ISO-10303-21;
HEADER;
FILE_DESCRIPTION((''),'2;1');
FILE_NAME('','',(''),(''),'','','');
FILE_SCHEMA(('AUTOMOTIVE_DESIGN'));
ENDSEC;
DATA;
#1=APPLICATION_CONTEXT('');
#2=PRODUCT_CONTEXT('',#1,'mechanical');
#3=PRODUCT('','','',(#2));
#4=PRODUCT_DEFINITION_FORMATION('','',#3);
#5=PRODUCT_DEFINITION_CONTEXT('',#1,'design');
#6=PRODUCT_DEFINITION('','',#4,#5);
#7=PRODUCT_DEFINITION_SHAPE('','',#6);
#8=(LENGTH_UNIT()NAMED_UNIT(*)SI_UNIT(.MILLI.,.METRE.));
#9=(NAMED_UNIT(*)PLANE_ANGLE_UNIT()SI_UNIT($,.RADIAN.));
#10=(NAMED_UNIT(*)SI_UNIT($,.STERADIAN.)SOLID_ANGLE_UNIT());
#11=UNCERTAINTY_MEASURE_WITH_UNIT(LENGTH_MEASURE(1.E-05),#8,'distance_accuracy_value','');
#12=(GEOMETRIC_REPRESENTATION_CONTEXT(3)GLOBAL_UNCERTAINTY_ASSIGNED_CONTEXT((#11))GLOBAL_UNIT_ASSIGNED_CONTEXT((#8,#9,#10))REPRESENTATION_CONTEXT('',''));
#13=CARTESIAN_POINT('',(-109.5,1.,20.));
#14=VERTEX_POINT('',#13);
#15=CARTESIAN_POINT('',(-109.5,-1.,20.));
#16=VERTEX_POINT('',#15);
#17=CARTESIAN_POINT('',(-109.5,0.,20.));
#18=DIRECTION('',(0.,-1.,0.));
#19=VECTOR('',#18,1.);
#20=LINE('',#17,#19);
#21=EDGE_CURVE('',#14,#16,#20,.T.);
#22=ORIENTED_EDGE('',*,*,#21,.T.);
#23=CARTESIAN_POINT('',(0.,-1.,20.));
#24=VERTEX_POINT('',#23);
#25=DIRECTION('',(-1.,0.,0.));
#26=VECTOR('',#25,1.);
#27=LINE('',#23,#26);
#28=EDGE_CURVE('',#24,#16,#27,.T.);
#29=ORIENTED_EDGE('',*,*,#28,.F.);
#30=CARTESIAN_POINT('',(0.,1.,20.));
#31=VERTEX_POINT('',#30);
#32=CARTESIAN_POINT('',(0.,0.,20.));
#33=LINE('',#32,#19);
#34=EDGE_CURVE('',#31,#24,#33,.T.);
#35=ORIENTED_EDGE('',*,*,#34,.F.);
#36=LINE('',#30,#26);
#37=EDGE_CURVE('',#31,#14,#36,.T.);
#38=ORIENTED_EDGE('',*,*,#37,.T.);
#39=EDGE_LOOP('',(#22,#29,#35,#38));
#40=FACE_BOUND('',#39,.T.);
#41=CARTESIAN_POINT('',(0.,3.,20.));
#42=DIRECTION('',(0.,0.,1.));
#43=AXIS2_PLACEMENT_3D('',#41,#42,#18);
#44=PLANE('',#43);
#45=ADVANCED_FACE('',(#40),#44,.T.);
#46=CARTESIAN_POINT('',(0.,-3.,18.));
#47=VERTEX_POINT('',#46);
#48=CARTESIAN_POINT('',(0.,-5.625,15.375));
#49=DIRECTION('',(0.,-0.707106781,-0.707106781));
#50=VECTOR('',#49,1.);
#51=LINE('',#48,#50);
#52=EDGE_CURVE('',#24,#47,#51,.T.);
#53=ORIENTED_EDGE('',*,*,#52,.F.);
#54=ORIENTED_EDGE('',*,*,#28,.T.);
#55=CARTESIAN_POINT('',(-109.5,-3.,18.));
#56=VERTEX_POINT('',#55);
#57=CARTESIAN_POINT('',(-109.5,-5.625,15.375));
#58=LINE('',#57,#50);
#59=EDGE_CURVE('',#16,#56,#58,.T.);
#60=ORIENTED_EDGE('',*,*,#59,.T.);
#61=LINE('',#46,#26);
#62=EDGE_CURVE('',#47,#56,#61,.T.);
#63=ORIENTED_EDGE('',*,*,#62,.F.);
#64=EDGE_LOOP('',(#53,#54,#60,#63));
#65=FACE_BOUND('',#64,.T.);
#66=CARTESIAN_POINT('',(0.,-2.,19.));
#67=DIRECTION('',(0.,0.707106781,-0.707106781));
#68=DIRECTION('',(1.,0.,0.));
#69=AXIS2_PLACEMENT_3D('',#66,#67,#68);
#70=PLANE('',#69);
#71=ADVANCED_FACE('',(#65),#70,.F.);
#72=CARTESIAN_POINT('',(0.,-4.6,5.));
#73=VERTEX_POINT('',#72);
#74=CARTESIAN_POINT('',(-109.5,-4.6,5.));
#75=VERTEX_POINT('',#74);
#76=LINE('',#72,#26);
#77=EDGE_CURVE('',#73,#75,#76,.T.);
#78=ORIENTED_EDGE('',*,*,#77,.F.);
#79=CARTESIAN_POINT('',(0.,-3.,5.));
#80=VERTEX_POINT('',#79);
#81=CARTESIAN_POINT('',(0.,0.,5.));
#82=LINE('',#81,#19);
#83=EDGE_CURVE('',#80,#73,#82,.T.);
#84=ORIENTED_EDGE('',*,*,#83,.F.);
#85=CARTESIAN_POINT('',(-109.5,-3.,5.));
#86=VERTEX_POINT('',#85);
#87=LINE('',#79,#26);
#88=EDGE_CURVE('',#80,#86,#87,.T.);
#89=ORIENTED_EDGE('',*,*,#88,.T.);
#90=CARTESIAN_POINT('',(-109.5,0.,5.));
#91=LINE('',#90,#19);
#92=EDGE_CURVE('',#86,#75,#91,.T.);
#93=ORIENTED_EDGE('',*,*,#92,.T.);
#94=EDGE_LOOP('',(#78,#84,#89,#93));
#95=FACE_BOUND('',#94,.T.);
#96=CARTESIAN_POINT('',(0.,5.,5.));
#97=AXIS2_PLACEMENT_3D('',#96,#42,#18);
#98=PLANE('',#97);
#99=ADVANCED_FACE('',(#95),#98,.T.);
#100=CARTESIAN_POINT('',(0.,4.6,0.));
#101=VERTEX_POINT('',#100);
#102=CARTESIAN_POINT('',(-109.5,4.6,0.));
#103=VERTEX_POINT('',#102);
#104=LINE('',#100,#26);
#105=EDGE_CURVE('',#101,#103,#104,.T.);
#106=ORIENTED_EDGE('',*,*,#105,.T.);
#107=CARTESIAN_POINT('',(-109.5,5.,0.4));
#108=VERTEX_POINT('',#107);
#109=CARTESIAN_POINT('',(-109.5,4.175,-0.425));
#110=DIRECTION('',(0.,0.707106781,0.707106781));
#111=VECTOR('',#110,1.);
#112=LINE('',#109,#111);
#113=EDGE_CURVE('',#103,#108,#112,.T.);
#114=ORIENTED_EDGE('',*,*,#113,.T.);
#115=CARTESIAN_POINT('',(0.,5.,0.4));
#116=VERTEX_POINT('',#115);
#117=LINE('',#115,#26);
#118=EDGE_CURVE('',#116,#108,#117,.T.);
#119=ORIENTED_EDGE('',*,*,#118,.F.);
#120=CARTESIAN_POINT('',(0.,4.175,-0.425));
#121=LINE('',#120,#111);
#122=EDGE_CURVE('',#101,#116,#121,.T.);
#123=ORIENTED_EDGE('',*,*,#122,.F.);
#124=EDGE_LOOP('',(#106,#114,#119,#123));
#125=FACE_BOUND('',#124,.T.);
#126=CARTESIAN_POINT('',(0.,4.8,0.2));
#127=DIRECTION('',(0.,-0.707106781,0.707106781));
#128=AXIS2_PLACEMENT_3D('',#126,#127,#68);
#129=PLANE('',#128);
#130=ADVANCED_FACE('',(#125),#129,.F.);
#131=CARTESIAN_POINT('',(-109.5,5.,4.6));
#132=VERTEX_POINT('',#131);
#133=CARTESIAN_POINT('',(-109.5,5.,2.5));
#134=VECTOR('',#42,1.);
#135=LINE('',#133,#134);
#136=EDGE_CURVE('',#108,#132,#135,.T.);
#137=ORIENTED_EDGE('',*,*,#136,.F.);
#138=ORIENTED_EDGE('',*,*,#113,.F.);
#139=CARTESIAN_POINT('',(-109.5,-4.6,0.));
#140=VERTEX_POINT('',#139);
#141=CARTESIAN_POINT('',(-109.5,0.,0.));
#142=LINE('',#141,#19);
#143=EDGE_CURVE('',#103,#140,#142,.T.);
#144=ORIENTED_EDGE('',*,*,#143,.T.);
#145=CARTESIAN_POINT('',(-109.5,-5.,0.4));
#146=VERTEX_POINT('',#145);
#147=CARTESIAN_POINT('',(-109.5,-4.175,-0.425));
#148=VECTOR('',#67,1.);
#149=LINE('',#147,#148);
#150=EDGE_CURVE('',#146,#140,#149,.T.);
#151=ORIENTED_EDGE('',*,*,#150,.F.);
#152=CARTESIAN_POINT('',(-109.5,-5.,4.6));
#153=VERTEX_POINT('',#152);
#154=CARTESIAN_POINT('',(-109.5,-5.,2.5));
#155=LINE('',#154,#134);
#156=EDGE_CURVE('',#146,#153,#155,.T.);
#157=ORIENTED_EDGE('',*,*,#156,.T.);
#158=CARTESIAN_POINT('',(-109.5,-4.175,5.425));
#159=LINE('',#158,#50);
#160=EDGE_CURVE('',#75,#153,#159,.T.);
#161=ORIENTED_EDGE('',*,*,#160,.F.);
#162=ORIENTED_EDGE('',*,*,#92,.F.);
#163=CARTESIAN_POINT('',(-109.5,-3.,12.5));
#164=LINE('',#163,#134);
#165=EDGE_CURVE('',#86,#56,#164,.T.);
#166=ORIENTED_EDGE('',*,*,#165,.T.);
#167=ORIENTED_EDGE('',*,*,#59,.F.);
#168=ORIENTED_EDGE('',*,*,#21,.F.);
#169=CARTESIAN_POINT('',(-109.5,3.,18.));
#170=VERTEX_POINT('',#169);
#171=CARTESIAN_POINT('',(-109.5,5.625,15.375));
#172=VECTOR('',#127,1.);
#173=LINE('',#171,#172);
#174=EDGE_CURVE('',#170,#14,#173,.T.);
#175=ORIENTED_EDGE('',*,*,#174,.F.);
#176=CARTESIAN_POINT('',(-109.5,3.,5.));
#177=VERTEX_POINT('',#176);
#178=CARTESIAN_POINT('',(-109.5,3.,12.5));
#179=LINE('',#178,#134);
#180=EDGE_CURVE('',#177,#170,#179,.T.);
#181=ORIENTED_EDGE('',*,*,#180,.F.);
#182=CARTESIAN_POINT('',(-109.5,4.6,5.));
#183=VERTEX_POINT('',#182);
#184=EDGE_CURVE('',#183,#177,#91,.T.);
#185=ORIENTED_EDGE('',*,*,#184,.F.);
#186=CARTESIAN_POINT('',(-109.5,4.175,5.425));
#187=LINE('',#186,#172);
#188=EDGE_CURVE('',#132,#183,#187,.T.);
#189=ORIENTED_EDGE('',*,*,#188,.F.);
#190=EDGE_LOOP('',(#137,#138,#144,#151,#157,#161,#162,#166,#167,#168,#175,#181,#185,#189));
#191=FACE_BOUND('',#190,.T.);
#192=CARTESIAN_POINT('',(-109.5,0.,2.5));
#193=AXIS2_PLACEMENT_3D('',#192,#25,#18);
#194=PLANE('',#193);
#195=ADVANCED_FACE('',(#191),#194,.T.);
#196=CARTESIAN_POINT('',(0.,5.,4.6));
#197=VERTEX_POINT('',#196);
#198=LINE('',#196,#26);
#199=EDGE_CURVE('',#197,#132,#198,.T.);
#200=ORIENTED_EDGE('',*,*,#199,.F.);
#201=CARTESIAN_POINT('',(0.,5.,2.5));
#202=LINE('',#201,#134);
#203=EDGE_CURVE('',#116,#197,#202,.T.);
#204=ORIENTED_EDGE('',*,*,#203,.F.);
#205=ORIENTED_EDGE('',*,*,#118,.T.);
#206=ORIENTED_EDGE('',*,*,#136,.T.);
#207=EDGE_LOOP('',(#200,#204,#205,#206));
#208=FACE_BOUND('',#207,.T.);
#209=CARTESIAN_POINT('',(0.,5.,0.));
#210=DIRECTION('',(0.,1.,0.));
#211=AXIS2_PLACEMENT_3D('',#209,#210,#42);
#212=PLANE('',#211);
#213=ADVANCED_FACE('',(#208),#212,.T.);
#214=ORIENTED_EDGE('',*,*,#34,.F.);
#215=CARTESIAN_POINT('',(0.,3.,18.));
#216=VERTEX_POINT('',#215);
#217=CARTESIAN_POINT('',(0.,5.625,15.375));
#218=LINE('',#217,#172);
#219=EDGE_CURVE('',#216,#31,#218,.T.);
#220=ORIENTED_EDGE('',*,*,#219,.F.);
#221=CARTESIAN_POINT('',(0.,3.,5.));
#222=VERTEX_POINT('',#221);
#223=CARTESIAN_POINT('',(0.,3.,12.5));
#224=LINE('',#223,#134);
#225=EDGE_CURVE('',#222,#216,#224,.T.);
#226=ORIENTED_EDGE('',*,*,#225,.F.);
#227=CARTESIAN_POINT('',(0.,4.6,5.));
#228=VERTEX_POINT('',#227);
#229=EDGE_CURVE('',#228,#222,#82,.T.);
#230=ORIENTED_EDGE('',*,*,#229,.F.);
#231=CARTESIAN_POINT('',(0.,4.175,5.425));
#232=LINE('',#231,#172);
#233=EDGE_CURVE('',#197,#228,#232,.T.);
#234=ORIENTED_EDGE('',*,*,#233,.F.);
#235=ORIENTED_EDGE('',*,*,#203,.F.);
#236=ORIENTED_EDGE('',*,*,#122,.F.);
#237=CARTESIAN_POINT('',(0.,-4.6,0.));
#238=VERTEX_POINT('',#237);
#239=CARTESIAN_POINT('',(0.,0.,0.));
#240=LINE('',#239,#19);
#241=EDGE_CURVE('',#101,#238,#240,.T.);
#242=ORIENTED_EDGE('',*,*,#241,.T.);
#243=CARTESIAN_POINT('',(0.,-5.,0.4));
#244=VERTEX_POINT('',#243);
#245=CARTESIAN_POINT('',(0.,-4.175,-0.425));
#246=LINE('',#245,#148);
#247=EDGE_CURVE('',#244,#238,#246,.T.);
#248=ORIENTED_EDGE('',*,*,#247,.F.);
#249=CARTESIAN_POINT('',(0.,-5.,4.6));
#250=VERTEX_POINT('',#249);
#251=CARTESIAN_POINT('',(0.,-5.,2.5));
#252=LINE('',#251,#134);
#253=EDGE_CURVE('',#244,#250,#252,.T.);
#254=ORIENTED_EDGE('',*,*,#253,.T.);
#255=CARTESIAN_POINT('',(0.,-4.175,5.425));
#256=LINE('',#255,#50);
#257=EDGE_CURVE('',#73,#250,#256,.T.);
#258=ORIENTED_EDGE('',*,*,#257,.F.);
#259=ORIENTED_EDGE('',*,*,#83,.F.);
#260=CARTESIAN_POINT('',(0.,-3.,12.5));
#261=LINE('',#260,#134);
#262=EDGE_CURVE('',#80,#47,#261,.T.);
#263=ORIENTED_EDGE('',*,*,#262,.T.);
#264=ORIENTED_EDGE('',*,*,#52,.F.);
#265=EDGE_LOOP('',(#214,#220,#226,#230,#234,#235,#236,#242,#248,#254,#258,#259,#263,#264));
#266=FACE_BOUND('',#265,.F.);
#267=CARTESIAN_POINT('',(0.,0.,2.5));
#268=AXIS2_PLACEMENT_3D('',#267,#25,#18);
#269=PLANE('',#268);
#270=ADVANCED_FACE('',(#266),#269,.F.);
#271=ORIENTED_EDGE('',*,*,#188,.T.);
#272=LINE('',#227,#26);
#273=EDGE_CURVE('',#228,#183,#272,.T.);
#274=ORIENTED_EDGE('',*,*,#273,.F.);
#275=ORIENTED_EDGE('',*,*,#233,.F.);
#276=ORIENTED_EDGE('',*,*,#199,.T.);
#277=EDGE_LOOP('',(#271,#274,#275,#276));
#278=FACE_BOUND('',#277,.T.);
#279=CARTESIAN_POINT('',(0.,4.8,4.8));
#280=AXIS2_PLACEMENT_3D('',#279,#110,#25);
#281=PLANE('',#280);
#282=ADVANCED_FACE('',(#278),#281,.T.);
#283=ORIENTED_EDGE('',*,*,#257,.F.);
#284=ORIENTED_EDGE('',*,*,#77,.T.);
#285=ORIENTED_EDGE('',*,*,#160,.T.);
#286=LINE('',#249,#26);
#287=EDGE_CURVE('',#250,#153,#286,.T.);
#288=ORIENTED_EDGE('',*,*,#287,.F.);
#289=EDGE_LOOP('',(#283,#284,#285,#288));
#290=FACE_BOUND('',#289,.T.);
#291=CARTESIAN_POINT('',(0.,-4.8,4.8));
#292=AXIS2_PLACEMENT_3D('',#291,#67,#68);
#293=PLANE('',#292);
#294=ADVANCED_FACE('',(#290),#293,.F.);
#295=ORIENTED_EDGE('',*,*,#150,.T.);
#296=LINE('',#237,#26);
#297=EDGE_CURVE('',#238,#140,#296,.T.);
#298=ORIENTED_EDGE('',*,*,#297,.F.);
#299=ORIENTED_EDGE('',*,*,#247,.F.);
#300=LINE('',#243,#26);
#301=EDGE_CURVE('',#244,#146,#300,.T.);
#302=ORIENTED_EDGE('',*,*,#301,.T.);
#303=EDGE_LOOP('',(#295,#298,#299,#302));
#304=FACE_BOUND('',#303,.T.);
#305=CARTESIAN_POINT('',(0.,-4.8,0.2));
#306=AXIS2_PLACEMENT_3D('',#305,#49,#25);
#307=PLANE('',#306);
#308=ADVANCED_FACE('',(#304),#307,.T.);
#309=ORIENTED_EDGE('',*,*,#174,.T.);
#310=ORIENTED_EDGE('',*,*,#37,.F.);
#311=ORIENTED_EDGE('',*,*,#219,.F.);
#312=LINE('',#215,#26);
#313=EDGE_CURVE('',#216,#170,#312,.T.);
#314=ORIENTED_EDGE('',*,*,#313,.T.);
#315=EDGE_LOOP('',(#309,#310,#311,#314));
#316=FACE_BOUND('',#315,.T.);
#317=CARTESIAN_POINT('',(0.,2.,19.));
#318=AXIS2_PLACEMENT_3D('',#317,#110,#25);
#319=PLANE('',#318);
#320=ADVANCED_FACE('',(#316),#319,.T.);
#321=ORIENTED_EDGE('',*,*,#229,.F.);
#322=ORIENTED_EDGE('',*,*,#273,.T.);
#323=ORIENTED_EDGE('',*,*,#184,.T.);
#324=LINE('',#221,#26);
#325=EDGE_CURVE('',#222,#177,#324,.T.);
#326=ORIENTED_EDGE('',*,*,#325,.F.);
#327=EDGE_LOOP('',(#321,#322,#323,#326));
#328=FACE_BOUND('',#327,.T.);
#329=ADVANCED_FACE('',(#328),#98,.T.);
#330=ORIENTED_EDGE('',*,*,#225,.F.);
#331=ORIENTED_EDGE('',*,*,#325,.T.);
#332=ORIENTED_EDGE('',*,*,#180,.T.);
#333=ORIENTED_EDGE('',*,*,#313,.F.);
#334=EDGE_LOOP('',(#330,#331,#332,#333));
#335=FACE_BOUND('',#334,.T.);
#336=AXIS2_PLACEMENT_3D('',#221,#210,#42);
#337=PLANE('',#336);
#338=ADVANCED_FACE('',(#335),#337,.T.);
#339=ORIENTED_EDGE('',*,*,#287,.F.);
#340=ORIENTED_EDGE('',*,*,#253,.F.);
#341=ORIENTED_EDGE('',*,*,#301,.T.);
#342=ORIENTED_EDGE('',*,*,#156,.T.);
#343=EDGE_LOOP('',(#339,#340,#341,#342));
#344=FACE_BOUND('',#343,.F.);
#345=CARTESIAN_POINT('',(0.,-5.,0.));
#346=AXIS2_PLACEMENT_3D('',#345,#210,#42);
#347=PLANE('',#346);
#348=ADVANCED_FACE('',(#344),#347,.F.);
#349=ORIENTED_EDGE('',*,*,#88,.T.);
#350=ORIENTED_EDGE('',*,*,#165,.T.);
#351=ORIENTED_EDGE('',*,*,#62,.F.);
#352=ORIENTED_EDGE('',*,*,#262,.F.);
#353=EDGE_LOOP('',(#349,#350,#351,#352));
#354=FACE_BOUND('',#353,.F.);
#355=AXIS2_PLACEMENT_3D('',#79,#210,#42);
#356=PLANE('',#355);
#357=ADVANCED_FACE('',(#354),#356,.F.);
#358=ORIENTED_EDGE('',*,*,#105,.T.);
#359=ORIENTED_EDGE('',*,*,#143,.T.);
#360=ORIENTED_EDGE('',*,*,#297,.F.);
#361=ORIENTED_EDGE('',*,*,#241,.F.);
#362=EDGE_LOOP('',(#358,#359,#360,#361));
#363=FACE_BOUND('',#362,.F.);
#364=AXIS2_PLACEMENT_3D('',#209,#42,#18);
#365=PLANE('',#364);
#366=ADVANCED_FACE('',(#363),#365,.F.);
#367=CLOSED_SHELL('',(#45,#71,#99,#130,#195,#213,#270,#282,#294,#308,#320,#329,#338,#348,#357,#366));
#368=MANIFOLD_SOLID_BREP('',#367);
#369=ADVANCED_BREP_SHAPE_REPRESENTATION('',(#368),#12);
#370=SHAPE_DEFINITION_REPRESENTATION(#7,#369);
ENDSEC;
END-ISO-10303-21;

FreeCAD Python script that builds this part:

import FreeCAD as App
import Part
import Sketcher
from FreeCAD import Vector
Q = App.Units.Quantity


def edges_at(feature, points):
    """Names of the edges that pass closest to the given points."""
    edges = feature.Shape.Edges
    near = lambda p: min(range(len(edges)), key=lambda i: edges[i].distToShape(Part.Vertex(*p))[0])
    return sorted({f"Edge{near(p) + 1}" for p in points})


def add_polygon(sketch, points):
    """Adds a closed chain of lines whose ends are joined by coincident constraints."""
    first, n = sketch.GeometryCount, len(points)
    for a, b in zip(points, points[1:] + points[:1]):
        sketch.addGeometry(Part.LineSegment(App.Vector(*a, 0), App.Vector(*b, 0)), False)
    for i in range(n):
        sketch.addConstraint(Sketcher.Constraint("Coincident", first + i, 2, first + (i + 1) % n, 1))

doc = App.newDocument("Part")
body = doc.addObject("PartDesign::Body", "Body")

# Sketch on XY plane
sketch1 = doc.addObject("Sketcher::SketchObject", "Sketch")
body.addObject(sketch1)
sketch1.AttachmentSupport = (doc.XY_Plane, [""])
sketch1.MapMode = "FlatFace"
add_polygon(sketch1, [(-3, 20), (-3, 5), (3, 5), (3, 20)])  # lines 0-3
sketch1.addConstraint([
    Sketcher.Constraint("Vertical", 0),
    Sketcher.Constraint("Horizontal", 1),
    Sketcher.Constraint("Vertical", 2),
    Sketcher.Constraint("Horizontal", 3),
    Sketcher.Constraint("DistanceX", 1, 1, 1, 2, Q("6 mm")),
    Sketcher.Constraint("DistanceY", 0, 2, 0, 1, Q("15 mm")),
    Sketcher.Constraint("DistanceX", 0, 2, -1, 1, Q("3 mm")),
    Sketcher.Constraint("DistanceY", -1, 1, 0, 2, Q("5 mm")),
])
pad1 = doc.addObject("PartDesign::Pad", "Pad")
body.addObject(pad1)
pad1.Profile = sketch1
pad1.Length = 109.5
body2 = doc.addObject("PartDesign::Body", "Body001")

# Sketch on XY plane
sketch2 = doc.addObject("Sketcher::SketchObject", "Sketch001")
body2.addObject(sketch2)
sketch2.AttachmentSupport = (doc.getObject("XY_Plane001"), [""])
sketch2.MapMode = "FlatFace"
add_polygon(sketch2, [(-5, 5), (-5, 0), (5, 0), (5, 5)])  # lines 0-3
sketch2.addConstraint([
    Sketcher.Constraint("Vertical", 0),
    Sketcher.Constraint("Horizontal", 1),
    Sketcher.Constraint("Vertical", 2),
    Sketcher.Constraint("Horizontal", 3),
    Sketcher.Constraint("Symmetric", 0, 2, 1, 2, -1, 1),
    Sketcher.Constraint("DistanceX", 1, 1, 1, 2, Q("10 mm")),
    Sketcher.Constraint("DistanceY", 0, 2, 0, 1, Q("5 mm")),
])
pad2 = doc.addObject("PartDesign::Pad", "Pad001")
body2.addObject(pad2)
pad2.Profile = sketch2
pad2.Length = 109.5
doc.recompute()

boolean = doc.addObject("PartDesign::Boolean", "Boolean")
body2.addObject(boolean)
boolean.Type = "Fuse"
boolean.addObjects([body])
doc.recompute()

chamfer = doc.addObject("PartDesign::Chamfer", "Chamfer")
body2.addObject(chamfer)
chamfer.Base = (boolean, edges_at(boolean, [(-3, 20, 54.75), (3, 20, 54.75)]))
chamfer.Size = 2
doc.recompute()

chamfer2 = doc.addObject("PartDesign::Chamfer", "Chamfer001")
body2.addObject(chamfer2)
chamfer2.Base = (chamfer, edges_at(chamfer, [
    (-5, 5, 54.75),
    (-5, 0, 54.75),
    (5, 5, 54.75),
    (5, 0, 54.75),
]))
chamfer2.Size = 0.4
body3 = doc.addObject("PartDesign::Body", "Body002")
doc.recompute()

body2.Placement = App.Placement(Vector(0, 0, 0), App.Rotation(Vector(1, 0, 0), 90))
boolean2 = doc.addObject("PartDesign::Boolean", "Boolean001")
body3.addObject(boolean2)
boolean2.Type = "Fuse"
boolean2.addObjects([body2])
body4 = doc.addObject("PartDesign::Body", "Body003")
doc.recompute()

body3.Placement = App.Placement(Vector(0, 0, 0), App.Rotation(Vector(0, 0, 1), 270))
boolean3 = doc.addObject("PartDesign::Boolean", "Boolean002")
body4.addObject(boolean3)
boolean3.Type = "Fuse"
boolean3.addObjects([body3])

doc.recompute()
